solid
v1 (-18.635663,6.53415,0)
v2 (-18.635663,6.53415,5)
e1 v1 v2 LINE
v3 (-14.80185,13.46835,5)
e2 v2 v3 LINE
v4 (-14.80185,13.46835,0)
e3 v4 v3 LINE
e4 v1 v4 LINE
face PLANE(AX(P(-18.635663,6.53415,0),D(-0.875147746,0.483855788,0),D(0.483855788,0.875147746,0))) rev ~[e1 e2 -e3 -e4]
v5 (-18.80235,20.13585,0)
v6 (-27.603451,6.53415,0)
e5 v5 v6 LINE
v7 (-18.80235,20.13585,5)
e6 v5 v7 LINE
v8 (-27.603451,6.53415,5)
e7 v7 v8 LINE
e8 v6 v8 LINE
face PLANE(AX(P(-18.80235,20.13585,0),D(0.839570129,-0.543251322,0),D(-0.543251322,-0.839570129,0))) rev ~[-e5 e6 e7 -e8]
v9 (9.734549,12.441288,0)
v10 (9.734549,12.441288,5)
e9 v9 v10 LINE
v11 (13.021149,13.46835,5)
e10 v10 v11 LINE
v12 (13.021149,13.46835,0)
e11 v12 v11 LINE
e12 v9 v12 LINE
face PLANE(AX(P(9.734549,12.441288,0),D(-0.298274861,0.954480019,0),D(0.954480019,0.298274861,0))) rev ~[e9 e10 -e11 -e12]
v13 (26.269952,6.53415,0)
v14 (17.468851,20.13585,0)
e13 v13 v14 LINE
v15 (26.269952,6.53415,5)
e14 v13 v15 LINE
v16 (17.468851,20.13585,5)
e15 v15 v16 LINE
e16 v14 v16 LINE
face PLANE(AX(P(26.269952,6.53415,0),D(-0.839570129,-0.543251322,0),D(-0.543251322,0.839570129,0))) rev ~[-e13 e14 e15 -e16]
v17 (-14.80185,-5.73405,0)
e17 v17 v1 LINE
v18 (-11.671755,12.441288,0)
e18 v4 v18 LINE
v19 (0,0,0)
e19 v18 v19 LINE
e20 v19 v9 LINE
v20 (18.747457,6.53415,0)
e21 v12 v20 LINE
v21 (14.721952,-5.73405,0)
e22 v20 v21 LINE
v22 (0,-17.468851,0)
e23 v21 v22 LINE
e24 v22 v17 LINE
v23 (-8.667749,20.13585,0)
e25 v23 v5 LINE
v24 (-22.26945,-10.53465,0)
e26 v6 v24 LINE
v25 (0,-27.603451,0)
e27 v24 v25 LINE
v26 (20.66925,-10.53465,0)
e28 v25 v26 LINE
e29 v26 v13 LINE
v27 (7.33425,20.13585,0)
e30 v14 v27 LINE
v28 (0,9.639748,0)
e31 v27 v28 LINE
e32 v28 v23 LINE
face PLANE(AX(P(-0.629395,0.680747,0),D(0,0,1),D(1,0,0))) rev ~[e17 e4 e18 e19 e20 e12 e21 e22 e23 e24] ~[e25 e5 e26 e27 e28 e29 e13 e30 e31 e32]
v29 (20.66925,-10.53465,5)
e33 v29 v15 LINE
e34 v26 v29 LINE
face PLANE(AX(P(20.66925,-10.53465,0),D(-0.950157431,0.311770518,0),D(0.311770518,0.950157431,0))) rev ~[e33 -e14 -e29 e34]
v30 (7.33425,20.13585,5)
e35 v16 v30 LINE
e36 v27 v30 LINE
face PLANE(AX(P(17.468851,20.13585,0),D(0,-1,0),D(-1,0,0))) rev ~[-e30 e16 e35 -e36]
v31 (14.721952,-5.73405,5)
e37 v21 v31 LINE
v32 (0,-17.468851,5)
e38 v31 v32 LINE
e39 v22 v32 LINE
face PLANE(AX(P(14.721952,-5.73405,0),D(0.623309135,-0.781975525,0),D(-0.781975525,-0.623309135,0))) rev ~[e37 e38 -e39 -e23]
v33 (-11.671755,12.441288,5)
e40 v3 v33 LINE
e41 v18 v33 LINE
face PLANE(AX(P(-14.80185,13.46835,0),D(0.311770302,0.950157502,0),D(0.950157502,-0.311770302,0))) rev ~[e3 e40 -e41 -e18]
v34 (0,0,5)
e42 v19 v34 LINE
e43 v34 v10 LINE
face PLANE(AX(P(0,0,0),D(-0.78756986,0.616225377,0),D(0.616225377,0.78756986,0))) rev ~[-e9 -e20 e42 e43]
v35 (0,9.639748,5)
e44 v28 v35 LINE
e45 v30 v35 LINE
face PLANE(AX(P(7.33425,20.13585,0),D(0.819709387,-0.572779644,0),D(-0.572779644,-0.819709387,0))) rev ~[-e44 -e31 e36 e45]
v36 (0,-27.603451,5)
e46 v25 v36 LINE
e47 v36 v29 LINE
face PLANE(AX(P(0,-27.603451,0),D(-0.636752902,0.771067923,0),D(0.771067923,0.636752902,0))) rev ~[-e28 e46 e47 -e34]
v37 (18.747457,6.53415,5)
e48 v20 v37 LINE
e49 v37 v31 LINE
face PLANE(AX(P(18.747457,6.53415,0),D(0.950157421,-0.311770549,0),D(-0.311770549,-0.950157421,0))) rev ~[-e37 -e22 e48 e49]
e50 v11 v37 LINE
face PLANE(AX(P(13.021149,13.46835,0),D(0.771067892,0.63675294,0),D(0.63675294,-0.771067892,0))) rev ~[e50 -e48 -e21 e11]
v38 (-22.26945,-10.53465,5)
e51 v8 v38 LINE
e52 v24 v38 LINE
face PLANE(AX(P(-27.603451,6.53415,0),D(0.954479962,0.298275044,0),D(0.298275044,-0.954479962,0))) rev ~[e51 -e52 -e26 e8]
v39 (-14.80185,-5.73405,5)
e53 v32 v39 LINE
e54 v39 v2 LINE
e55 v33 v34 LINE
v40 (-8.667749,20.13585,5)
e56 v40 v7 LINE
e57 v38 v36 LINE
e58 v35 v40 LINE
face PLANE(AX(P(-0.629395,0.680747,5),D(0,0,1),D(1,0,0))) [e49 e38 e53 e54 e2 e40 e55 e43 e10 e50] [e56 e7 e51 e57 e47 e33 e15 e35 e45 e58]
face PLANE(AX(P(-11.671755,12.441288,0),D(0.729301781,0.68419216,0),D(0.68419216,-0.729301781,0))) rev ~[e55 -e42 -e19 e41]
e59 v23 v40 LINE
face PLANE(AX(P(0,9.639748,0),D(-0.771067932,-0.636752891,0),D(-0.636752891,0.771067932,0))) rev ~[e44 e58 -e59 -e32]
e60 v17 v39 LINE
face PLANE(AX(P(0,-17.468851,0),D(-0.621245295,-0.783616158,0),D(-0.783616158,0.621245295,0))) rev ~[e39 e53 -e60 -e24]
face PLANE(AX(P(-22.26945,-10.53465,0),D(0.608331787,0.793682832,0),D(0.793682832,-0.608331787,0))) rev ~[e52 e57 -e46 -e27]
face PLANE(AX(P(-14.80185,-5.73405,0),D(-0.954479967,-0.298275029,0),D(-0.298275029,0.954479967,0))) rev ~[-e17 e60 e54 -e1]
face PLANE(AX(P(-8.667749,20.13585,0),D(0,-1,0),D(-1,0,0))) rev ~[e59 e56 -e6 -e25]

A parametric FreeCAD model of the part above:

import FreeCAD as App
import Part
import Sketcher

V = App.Vector
Q = App.Units.Quantity

doc = App.newDocument("Part")
body = doc.addObject("PartDesign::Body", "Body")

# Sketch on XY plane
sketch1 = doc.addObject("Sketcher::SketchObject", "Sketch")
body.addObject(sketch1)
sketch1.AttachmentSupport = (doc.XY_Plane, [""])
sketch1.MapMode = "FlatFace"
sketch1.addGeometry([
    Part.LineSegment(V(-22.3, -10.5, 0), V(0, -27.6, 0)),  # 0
    Part.LineSegment(V(0, -27.6, 0), V(20.7, -10.5, 0)),  # 1
    Part.LineSegment(V(20.7, -10.5, 0), V(26.3, 6.5, 0)),  # 2
    Part.LineSegment(V(26.3, 6.5, 0), V(17.5, 20.1, 0)),  # 3
    Part.LineSegment(V(17.5, 20.1, 0), V(7.3, 20.1, 0)),  # 4
    Part.LineSegment(V(7.3, 20.1, 0), V(0, 9.6, 0)),  # 5
    Part.LineSegment(V(0, 9.6, 0), V(-8.7, 20.1, 0)),  # 6
    Part.LineSegment(V(-8.7, 20.1, 0), V(-18.8, 20.1, 0)),  # 7
    Part.LineSegment(V(-18.8, 20.1, 0), V(-27.6, 6.5, 0)),  # 8
    Part.LineSegment(V(-27.6, 6.5, 0), V(-22.3, -10.5, 0)),  # 9
    Part.LineSegment(V(18.7, 6.5, 0), V(14.7, -5.7, 0)),  # 10
    Part.LineSegment(V(14.7, -5.7, 0), V(0, -17.5, 0)),  # 11
    Part.LineSegment(V(0, -17.5, 0), V(-14.8, -5.7, 0)),  # 12
    Part.LineSegment(V(-14.8, -5.7, 0), V(-18.6, 6.5, 0)),  # 13
    Part.LineSegment(V(-18.6, 6.5, 0), V(-14.8, 13.5, 0)),  # 14
    Part.LineSegment(V(-14.8, 13.5, 0), V(-11.7, 12.4, 0)),  # 15
    Part.LineSegment(V(-11.7, 12.4, 0), V(0, 0, 0)),  # 16
    Part.LineSegment(V(0, 0, 0), V(9.7, 12.4, 0)),  # 17
    Part.LineSegment(V(9.7, 12.4, 0), V(13, 13.5, 0)),  # 18
    Part.LineSegment(V(13, 13.5, 0), V(18.7, 6.5, 0)),  # 19
], False)
sketch1.addConstraint([
    Sketcher.Constraint("Coincident", 0, 2, 1, 1),
    Sketcher.Constraint("Coincident", 1, 2, 2, 1),
    Sketcher.Constraint("Coincident", 2, 2, 3, 1),
    Sketcher.Constraint("Coincident", 3, 2, 4, 1),
    Sketcher.Constraint("Coincident", 4, 2, 5, 1),
    Sketcher.Constraint("Coincident", 5, 2, 6, 1),
    Sketcher.Constraint("Coincident", 6, 2, 7, 1),
    Sketcher.Constraint("Coincident", 7, 2, 8, 1),
    Sketcher.Constraint("Coincident", 8, 2, 9, 1),
    Sketcher.Constraint("Coincident", 9, 2, 0, 1),
    Sketcher.Constraint("Coincident", 10, 2, 11, 1),
    Sketcher.Constraint("Coincident", 11, 2, 12, 1),
    Sketcher.Constraint("Coincident", 12, 2, 13, 1),
    Sketcher.Constraint("Coincident", 13, 2, 14, 1),
    Sketcher.Constraint("Coincident", 14, 2, 15, 1),
    Sketcher.Constraint("Coincident", 15, 2, 16, 1),
    Sketcher.Constraint("Coincident", 16, 2, 17, 1),
    Sketcher.Constraint("Coincident", 17, 2, 18, 1),
    Sketcher.Constraint("Coincident", 18, 2, 19, 1),
    Sketcher.Constraint("Coincident", 19, 2, 10, 1),
    Sketcher.Constraint("Horizontal", 4),
    Sketcher.Constraint("Horizontal", 7),
    Sketcher.Constraint("Coincident", 16, 2, -1, 1),
    Sketcher.Constraint("PointOnObject", 0, 2, -2),
    Sketcher.Constraint("PointOnObject", 5, 2, -2),
    Sketcher.Constraint("PointOnObject", 11, 2, -2),
    Sketcher.Constraint("Perpendicular", 1, 6),
    Sketcher.Constraint("Parallel", 2, 10),
    Sketcher.Constraint("Parallel", 9, 13),
    Sketcher.Constraint("Perpendicular", 10, 15),
    Sketcher.Constraint("Perpendicular", 13, 18),
    Sketcher.Constraint("Parallel", 6, 19),
    Sketcher.Constraint("Horizontal", 4, 2, 6, 2),
    Sketcher.Constraint("Horizontal", 2, 2, 8, 2),
    Sketcher.Constraint("Horizontal", 1, 2, 9, 2),
    Sketcher.Constraint("Horizontal", 10, 2, 12, 2),
    Sketcher.Constraint("Horizontal", 8, 2, 13, 2),
    Sketcher.Constraint("Horizontal", 15, 2, 17, 2),
    Sketcher.Constraint("Horizontal", 14, 2, 18, 2),
    Sketcher.Constraint("Horizontal", 13, 2, 19, 2),
    Sketcher.Constraint("Vertical", 12, 2, 14, 2),
    Sketcher.Constraint("Equal", 4, 7),
    Sketcher.Constraint("Equal", 3, 8),
    Sketcher.Constraint("DistanceX", 4, 2, 4, 1, Q("10.134601 mm")),
    Sketcher.Constraint("DistanceX", 4, 2, 1, 2, Q("13.335 mm")),
    Sketcher.Constraint("DistanceX", 6, 2, 4, 2, Q("16.001999 mm")),
    Sketcher.Constraint("DistanceX", 8, 2, 9, 2, Q("5.334001 mm")),
    Sketcher.Constraint("DistanceX", 10, 2, 2, 2, Q("11.548 mm")),
    Sketcher.Constraint("DistanceY", 0, 2, 1, 2, Q("17.068801 mm")),
    Sketcher.Constraint("DistanceX", 1, 2, 2, 2, Q("5.600702 mm")),
    Sketcher.Constraint("DistanceY", 1, 2, 2, 2, Q("17.0688 mm")),
    Sketcher.Constraint("DistanceY", 2, 2, 3, 2, Q("13.6017 mm")),
    Sketcher.Constraint("DistanceY", 2, 2, 5, 2, Q("3.105598 mm")),
    Sketcher.Constraint("DistanceY", 1, 2, 10, 2, Q("4.8006 mm")),
    Sketcher.Constraint("DistanceY", 0, 2, 11, 2, Q("10.1346 mm")),
    Sketcher.Constraint("DistanceX", 9, 2, 12, 2, Q("7.4676 mm")),
    Sketcher.Constraint("DistanceY", 14, 2, 7, 2, Q("6.6675 mm")),
    Sketcher.Constraint("DistanceX", 4, 2, 17, 2, Q("2.400299 mm")),
    Sketcher.Constraint("Distance", 17, Q("15.79706 mm")),
])
pad1 = doc.addObject("PartDesign::Pad", "Pad")
body.addObject(pad1)
pad1.Profile = sketch1
pad1.Length = 5

doc.recompute()
